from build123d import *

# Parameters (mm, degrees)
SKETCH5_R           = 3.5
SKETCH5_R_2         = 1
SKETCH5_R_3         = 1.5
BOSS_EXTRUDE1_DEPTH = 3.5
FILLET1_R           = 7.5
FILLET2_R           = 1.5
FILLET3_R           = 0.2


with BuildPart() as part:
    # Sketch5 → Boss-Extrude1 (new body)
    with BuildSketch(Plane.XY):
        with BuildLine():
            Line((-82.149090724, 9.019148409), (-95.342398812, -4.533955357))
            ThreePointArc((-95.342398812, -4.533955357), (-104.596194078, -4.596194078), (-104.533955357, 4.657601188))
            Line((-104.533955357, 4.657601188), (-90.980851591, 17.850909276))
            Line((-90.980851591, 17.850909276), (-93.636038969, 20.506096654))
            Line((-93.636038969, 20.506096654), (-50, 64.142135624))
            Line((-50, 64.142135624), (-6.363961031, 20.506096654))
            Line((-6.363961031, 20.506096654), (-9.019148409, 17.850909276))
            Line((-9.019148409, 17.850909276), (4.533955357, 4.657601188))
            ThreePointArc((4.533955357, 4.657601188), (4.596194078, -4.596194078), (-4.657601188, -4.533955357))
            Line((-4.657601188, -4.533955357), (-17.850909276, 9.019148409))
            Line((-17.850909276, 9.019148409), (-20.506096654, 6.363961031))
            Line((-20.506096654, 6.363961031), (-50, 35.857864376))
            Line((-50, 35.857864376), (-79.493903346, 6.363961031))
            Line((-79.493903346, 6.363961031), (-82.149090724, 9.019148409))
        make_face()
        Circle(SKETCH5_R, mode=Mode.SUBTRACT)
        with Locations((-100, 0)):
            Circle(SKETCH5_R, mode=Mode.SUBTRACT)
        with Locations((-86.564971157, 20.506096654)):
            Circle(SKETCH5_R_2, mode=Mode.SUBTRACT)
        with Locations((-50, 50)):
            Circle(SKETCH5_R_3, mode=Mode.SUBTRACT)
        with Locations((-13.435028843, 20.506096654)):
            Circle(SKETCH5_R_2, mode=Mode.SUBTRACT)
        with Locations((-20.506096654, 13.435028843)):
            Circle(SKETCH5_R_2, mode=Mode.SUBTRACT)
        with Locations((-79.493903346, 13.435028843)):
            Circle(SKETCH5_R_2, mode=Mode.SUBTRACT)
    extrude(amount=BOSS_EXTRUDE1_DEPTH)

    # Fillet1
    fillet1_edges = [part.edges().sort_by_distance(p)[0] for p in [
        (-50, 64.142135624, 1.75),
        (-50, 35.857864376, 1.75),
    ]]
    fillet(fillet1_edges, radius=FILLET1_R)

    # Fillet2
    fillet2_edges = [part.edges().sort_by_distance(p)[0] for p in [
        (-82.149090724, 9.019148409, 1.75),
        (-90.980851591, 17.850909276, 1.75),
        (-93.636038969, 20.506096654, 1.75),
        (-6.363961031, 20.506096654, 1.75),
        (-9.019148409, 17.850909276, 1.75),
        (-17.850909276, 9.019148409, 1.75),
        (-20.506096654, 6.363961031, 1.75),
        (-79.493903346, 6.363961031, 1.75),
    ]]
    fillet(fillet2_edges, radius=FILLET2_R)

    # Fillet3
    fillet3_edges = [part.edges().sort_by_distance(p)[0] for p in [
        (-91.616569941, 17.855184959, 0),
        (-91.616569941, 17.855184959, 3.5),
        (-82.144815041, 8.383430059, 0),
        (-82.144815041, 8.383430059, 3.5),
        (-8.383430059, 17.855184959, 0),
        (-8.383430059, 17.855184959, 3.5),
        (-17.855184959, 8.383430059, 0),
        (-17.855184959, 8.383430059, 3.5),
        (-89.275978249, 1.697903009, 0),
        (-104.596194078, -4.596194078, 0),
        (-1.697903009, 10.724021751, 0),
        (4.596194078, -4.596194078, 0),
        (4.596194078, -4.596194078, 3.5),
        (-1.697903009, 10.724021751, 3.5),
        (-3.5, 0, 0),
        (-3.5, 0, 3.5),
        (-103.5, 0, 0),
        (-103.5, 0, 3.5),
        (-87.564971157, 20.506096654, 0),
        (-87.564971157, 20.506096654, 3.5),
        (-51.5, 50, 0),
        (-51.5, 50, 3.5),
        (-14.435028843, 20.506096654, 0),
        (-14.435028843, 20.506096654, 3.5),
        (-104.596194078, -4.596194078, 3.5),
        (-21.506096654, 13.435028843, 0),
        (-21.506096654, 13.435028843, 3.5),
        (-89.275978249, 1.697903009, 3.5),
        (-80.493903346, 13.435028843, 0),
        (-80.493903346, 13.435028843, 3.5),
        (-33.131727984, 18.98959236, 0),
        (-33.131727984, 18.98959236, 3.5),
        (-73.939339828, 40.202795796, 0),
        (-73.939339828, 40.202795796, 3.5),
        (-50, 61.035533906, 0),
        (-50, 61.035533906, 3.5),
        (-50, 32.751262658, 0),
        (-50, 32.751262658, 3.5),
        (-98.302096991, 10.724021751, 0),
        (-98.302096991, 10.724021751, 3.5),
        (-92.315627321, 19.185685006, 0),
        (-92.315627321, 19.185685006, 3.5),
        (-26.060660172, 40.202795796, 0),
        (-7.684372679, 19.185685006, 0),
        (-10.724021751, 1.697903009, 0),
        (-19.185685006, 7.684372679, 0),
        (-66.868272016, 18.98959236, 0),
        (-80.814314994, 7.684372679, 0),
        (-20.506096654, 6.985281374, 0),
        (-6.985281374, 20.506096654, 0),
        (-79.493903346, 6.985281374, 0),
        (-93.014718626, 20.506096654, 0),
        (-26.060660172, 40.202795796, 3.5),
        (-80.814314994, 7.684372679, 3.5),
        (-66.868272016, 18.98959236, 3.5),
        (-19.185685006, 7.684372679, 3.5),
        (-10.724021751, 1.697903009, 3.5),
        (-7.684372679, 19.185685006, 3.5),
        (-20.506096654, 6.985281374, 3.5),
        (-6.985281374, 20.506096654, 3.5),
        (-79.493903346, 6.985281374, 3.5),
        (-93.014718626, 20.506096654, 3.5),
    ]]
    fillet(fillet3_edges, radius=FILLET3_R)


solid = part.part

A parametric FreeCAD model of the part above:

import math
import FreeCAD as App
import Part
import Sketcher

V = App.Vector


def edges_at(feature, points):
    """Names of the edges that pass closest to the given points."""
    edges = feature.Shape.Edges
    near = lambda p: min(range(len(edges)), key=lambda i: edges[i].distToShape(Part.Vertex(*p))[0])
    return sorted({f"Edge{near(p) + 1}" for p in points})

doc = App.newDocument("Part")
body = doc.addObject("PartDesign::Body", "Body")

# Sketch on XY plane
sketch1 = body.newObject("Sketcher::SketchObject", "Sketch")
sketch1.AttachmentSupport = (doc.getObject("XY_Plane"), [""])
sketch1.MapMode = "FlatFace"
sketch1.addGeometry([
    Part.LineSegment(V(-95.3, -4.5, 0), V(-82.1, 9, 0)),  # 0
    Part.LineSegment(V(-82.1, 9, 0), V(-79.5, 6.4, 0)),  # 1
    Part.LineSegment(V(-79.5, 6.4, 0), V(-50, 35.9, 0)),  # 2
    Part.LineSegment(V(-50, 35.9, 0), V(-20.5, 6.4, 0)),  # 3
    Part.LineSegment(V(-20.5, 6.4, 0), V(-17.9, 9, 0)),  # 4
    Part.LineSegment(V(-17.9, 9, 0), V(-4.7, -4.5, 0)),  # 5
    Part.ArcOfCircle(Part.Circle(V(0, 0, 0), V(0, 0, 1), 6.5), math.radians(-136), math.radians(46)),  # 6
    Part.LineSegment(V(4.5, 4.7, 0), V(-9, 17.9, 0)),  # 7
    Part.LineSegment(V(-9, 17.9, 0), V(-6.4, 20.5, 0)),  # 8
    Part.LineSegment(V(-6.4, 20.5, 0), V(-50, 64.1, 0)),  # 9
    Part.LineSegment(V(-50, 64.1, 0), V(-93.6, 20.5, 0)),  # 10
    Part.LineSegment(V(-93.6, 20.5, 0), V(-91, 17.9, 0)),  # 11
    Part.LineSegment(V(-91, 17.9, 0), V(-104.5, 4.7, 0)),  # 12
    Part.ArcOfCircle(Part.Circle(V(-100, 0, 0), V(0, 0, 1), 6.5), math.radians(134), math.radians(316)),  # 13
    Part.Circle(V(0, 0, 0), V(0, 0, 1), 3.5),  # 14
    Part.Circle(V(-20.5, 13.4, 0), V(0, 0, 1), 1),  # 15
    Part.Circle(V(-13.4, 20.5, 0), V(0, 0, 1), 1),  # 16
    Part.Circle(V(-100, 0, 0), V(0, 0, 1), 3.5),  # 17
    Part.Circle(V(-79.5, 13.4, 0), V(0, 0, 1), 1),  # 18
    Part.Circle(V(-86.6, 20.5, 0), V(0, 0, 1), 1),  # 19
    Part.Circle(V(-50, 50, 0), V(0, 0, 1), 1.5),  # 20
], False)
sketch1.addConstraint([
    Sketcher.Constraint("Coincident", 0, 2, 1, 1),
    Sketcher.Constraint("Coincident", 1, 2, 2, 1),
    Sketcher.Constraint("Coincident", 2, 2, 3, 1),
    Sketcher.Constraint("Coincident", 3, 2, 4, 1),
    Sketcher.Constraint("Coincident", 4, 2, 5, 1),
    Sketcher.Constraint("Tangent", 5, 2, 6, 1),
    Sketcher.Constraint("Tangent", 6, 2, 7, 1),
    Sketcher.Constraint("Coincident", 7, 2, 8, 1),
    Sketcher.Constraint("Coincident", 8, 2, 9, 1),
    Sketcher.Constraint("Coincident", 9, 2, 10, 1),
    Sketcher.Constraint("Coincident", 10, 2, 11, 1),
    Sketcher.Constraint("Coincident", 11, 2, 12, 1),
    Sketcher.Constraint("Tangent", 12, 2, 13, 1),
    Sketcher.Constraint("Tangent", 13, 2, 0, 1),
    Sketcher.Constraint("Coincident", 6, 3, -1, 1),
    Sketcher.Constraint("Coincident", 14, 3, -1, 1),
    Sketcher.Constraint("Coincident", 17, 3, 13, 3),
    Sketcher.Constraint("Equal", 6, 13),
    Sketcher.Constraint("Equal", 15, 16),
    Sketcher.Constraint("Equal", 14, 17),
    Sketcher.Constraint("Equal", 16, 18),
    Sketcher.Constraint("Equal", 18, 19),
    Sketcher.Constraint("PointOnObject", 13, 3, -1),
    Sketcher.Constraint("Perpendicular", 1, 2),
    Sketcher.Constraint("Perpendicular", 2, 3),
    Sketcher.Constraint("Perpendicular", 3, 4),
    Sketcher.Constraint("Perpendicular", 0, 7),
    Sketcher.Constraint("Parallel", 4, 8),
    Sketcher.Constraint("Perpendicular", 8, 9),
    Sketcher.Constraint("Perpendicular", 9, 10),
    Sketcher.Constraint("Perpendicular", 10, 11),
    Sketcher.Constraint("Perpendicular", 5, 12),
    Sketcher.Constraint("Horizontal", 15, 3, 18, 3),
    Sketcher.Constraint("Horizontal", 16, 3, 19, 3),
    Sketcher.Constraint("Horizontal", 1, 2, 3, 2),
    Sketcher.Constraint("Horizontal", 0, 2, 4, 2),
    Sketcher.Constraint("Horizontal", 19, 3, 8, 2),
    Sketcher.Constraint("Horizontal", 8, 2, 10, 2),
    Sketcher.Constraint("Horizontal", 7, 2, 11, 2),
    Sketcher.Constraint("Horizontal", 6, 2, 12, 2),
    Sketcher.Constraint("Vertical", 18, 3, 1, 2),
    Sketcher.Constraint("Vertical", 20, 3, 2, 2),
    Sketcher.Constraint("Vertical", 15, 3, 3, 2),
    Sketcher.Constraint("Vertical", 2, 2, 9, 2),
    Sketcher.Constraint("Equal", 5, 7),
    Sketcher.Constraint("Equal", 4, 8),
    Sketcher.Constraint("Diameter", 14, 7.0),
    Sketcher.Constraint("Diameter", 15, 2.0),
    Sketcher.Constraint("Diameter", 20, 3.0),
    Sketcher.Constraint("Radius", 6, 6.5),
    Sketcher.Constraint("DistanceX", 13, 3, -1, 1, 100.0),
    Sketcher.Constraint("DistanceY", -1, 1, 20, 3, 50.0),
    Sketcher.Constraint("DistanceX", 5, 2, -1, 1, 4.657601),
    Sketcher.Constraint("Distance", 0, 18.91428),
    Sketcher.Constraint("Distance", 2, 41.710678),
    Sketcher.Constraint("DistanceY", -1, 1, 15, 3, 13.435029),
    Sketcher.Constraint("DistanceX", 16, 3, -1, 1, 13.435029),
    Sketcher.Constraint("DistanceX", 19, 3, -1, 1, 86.564971),
])
pad1 = body.newObject("PartDesign::Pad", "Pad")
pad1.Profile = sketch1
pad1.Length = 3.5
doc.recompute()

fillet = body.newObject("PartDesign::Fillet", "Fillet")
fillet.Base = (pad1, edges_at(pad1, [(-50, 64.142, 1.75), (-50, 35.858, 1.75)]))
fillet.Radius = 7.5
doc.recompute()

fillet2 = body.newObject("PartDesign::Fillet", "Fillet001")
fillet2.Base = (fillet, edges_at(fillet, [
    (-82.149, 9.019, 1.75),
    (-90.981, 17.851, 1.75),
    (-93.636, 20.506, 1.75),
    (-6.364, 20.506, 1.75),
    (-9.019, 17.851, 1.75),
    (-17.851, 9.019, 1.75),
    (-20.506, 6.364, 1.75),
    (-79.494, 6.364, 1.75),
]))
fillet2.Radius = 1.5
doc.recompute()

fillet3 = body.newObject("PartDesign::Fillet", "Fillet002")
fillet3.Base = (fillet2, edges_at(fillet2, [
    (-91.617, 17.855, 0),
    (-91.617, 17.855, 3.5),
    (-82.145, 8.383, 0),
    (-82.145, 8.383, 3.5),
    (-8.383, 17.855, 0),
    (-8.383, 17.855, 3.5),
    (-17.855, 8.383, 0),
    (-17.855, 8.383, 3.5),
    (-89.276, 1.698, 0),
    (-104.596, -4.596, 0),
    (-1.698, 10.724, 0),
    (4.596, -4.596, 0),
    (4.596, -4.596, 3.5),
    (-1.698, 10.724, 3.5),
    (-3.5, 0, 0),
    (-3.5, 0, 3.5),
    (-103.5, 0, 0),
    (-103.5, 0, 3.5),
    (-87.565, 20.506, 0),
    (-87.565, 20.506, 3.5),
    (-51.5, 50, 0),
    (-51.5, 50, 3.5),
    (-14.435, 20.506, 0),
    (-14.435, 20.506, 3.5),
    (-104.596, -4.596, 3.5),
    (-21.506, 13.435, 0),
    (-21.506, 13.435, 3.5),
    (-89.276, 1.698, 3.5),
    (-80.494, 13.435, 0),
    (-80.494, 13.435, 3.5),
    (-33.132, 18.99, 0),
    (-33.132, 18.99, 3.5),
    (-73.939, 40.203, 0),
    (-73.939, 40.203, 3.5),
    (-50, 61.036, 0),
    (-50, 61.036, 3.5),
    (-50, 32.751, 0),
    (-50, 32.751, 3.5),
    (-98.302, 10.724, 0),
    (-98.302, 10.724, 3.5),
    (-92.316, 19.186, 0),
    (-92.316, 19.186, 3.5),
    (-26.061, 40.203, 0),
    (-7.684, 19.186, 0),
    (-10.724, 1.698, 0),
    (-19.186, 7.684, 0),
    (-66.868, 18.99, 0),
    (-80.814, 7.684, 0),
    (-20.506, 6.985, 0),
    (-6.985, 20.506, 0),
    (-79.494, 6.985, 0),
    (-93.015, 20.506, 0),
    (-26.061, 40.203, 3.5),
    (-80.814, 7.684, 3.5),
    (-66.868, 18.99, 3.5),
    (-19.186, 7.684, 3.5),
    (-10.724, 1.698, 3.5),
    (-7.684, 19.186, 3.5),
    (-20.506, 6.985, 3.5),
    (-6.985, 20.506, 3.5),
    (-79.494, 6.985, 3.5),
    (-93.015, 20.506, 3.5),
]))
fillet3.Radius = 0.2

doc.recompute()
